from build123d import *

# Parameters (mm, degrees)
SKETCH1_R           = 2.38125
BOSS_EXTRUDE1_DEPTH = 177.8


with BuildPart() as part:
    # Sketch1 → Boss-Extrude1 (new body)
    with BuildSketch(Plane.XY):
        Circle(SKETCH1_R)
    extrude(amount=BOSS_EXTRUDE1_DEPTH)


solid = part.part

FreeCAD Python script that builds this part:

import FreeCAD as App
import Part
import Sketcher
Q = App.Units.Quantity

doc = App.newDocument("Part")
body = doc.addObject("PartDesign::Body", "Body")

# Sketch on XY plane
sketch1 = body.newObject("Sketcher::SketchObject", "Sketch")
sketch1.AttachmentSupport = (doc.getObject("XY_Plane"), [""])
sketch1.MapMode = "FlatFace"
sketch1.addGeometry(Part.Circle(App.Vector(0, 0, 0), App.Vector(0, 0, 1), 2.4), False)
sketch1.addConstraint([
    Sketcher.Constraint("Coincident", 0, 3, -1, 1),
    Sketcher.Constraint("Diameter", 0, Q("0.1875 in")),
])
pad1 = body.newObject("PartDesign::Pad", "Pad")
pad1.Profile = sketch1
pad1.Length = Q("7 in")

doc.recompute()
